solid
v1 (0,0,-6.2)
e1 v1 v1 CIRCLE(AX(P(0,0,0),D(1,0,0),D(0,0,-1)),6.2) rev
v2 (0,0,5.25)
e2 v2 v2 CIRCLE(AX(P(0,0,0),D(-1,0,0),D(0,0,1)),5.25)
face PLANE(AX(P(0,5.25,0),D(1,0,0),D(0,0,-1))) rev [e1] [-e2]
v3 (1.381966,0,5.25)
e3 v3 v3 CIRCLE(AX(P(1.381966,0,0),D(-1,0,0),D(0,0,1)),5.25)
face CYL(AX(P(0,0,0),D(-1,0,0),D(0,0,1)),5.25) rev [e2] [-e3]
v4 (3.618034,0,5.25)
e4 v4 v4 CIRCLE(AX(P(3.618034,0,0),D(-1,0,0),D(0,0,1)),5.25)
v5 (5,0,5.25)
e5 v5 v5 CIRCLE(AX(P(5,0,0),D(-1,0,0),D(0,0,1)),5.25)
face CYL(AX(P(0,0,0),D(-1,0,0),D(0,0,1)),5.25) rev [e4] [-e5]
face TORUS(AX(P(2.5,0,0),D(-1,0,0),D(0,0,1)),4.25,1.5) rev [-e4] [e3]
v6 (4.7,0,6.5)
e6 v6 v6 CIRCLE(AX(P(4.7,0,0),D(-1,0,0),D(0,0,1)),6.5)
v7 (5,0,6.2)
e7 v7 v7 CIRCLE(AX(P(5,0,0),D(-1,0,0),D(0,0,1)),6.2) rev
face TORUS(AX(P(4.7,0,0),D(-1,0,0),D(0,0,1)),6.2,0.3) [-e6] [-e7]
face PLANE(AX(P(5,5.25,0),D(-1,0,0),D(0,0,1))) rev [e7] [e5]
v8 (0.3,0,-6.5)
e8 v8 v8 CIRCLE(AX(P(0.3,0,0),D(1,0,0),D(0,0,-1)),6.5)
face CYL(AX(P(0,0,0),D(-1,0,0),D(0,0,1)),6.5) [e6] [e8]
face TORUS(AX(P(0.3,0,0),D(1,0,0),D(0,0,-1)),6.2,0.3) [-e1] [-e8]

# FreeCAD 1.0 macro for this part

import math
import FreeCAD as App
import Part
import Sketcher

V = App.Vector
Q = App.Units.Quantity


def edges_at(feature, points):
    """Names of the edges that pass closest to the given points."""
    edges = feature.Shape.Edges
    near = lambda p: min(range(len(edges)), key=lambda i: edges[i].distToShape(Part.Vertex(*p))[0])
    return sorted({f"Edge{near(p) + 1}" for p in points})

doc = App.newDocument("Part")
body = doc.addObject("PartDesign::Body", "Body")

# Sketch on XY plane
sketch1 = body.newObject("Sketcher::SketchObject", "Sketch")
sketch1.AttachmentSupport = (doc.getObject("XY_Plane"), [""])
sketch1.MapMode = "FlatFace"
sketch1.addGeometry([
    Part.LineSegment(V(0, 5.25, 0), V(1.381966, 5.25, 0)),  # 0
    Part.ArcOfCircle(Part.Circle(V(2.5, 4.25, 0), V(0, 0, 1), 1.5), math.radians(41.810315), math.radians(138.189685)),  # 1
    Part.LineSegment(V(3.618034, 5.25, 0), V(5, 5.25, 0)),  # 2
    Part.LineSegment(V(5, 5.25, 0), V(5, 6.5, 0)),  # 3
    Part.LineSegment(V(5, 6.5, 0), V(0, 6.5, 0)),  # 4
    Part.LineSegment(V(0, 6.5, 0), V(0, 5.25, 0)),  # 5
], False)
sketch1.addConstraint([
    Sketcher.Constraint("Coincident", 0, 2, 1, 2),
    Sketcher.Constraint("Coincident", 1, 1, 2, 1),
    Sketcher.Constraint("Coincident", 2, 2, 3, 1),
    Sketcher.Constraint("Coincident", 3, 2, 4, 1),
    Sketcher.Constraint("Coincident", 4, 2, 5, 1),
    Sketcher.Constraint("Coincident", 5, 2, 0, 1),
    Sketcher.Constraint("Horizontal", 0),
    Sketcher.Constraint("Horizontal", 2),
    Sketcher.Constraint("Vertical", 3),
    Sketcher.Constraint("Horizontal", 4),
    Sketcher.Constraint("Vertical", 5),
    Sketcher.Constraint("PointOnObject", 4, 2, -2),
    Sketcher.Constraint("Horizontal", 0, 2, 1, 1),
    Sketcher.Constraint("Equal", 0, 2),
    Sketcher.Constraint("Radius", 1, Q("1.5 mm")),
    Sketcher.Constraint("DistanceX", 4, 2, 4, 1, Q("5 mm")),
    Sketcher.Constraint("DistanceY", 1, 3, 0, 2, Q("1 mm")),
    Sketcher.Constraint("DistanceY", 3, 1, 3, 2, Q("1.25 mm")),
    Sketcher.Constraint("DistanceY", -1, 1, 3, 2, Q("6.5 mm")),
])
revolution = body.newObject("PartDesign::Revolution", "Revolution")
revolution.Profile = sketch1
revolution.ReferenceAxis = (sketch1, ["H_Axis"])
revolution.Angle = 360
doc.recompute()

fillet = body.newObject("PartDesign::Fillet", "Fillet")
fillet.Base = (revolution, edges_at(revolution, [(5, -6.5, 0), (0, -6.5, 0)]))
fillet.Radius = 0.3

doc.recompute()
